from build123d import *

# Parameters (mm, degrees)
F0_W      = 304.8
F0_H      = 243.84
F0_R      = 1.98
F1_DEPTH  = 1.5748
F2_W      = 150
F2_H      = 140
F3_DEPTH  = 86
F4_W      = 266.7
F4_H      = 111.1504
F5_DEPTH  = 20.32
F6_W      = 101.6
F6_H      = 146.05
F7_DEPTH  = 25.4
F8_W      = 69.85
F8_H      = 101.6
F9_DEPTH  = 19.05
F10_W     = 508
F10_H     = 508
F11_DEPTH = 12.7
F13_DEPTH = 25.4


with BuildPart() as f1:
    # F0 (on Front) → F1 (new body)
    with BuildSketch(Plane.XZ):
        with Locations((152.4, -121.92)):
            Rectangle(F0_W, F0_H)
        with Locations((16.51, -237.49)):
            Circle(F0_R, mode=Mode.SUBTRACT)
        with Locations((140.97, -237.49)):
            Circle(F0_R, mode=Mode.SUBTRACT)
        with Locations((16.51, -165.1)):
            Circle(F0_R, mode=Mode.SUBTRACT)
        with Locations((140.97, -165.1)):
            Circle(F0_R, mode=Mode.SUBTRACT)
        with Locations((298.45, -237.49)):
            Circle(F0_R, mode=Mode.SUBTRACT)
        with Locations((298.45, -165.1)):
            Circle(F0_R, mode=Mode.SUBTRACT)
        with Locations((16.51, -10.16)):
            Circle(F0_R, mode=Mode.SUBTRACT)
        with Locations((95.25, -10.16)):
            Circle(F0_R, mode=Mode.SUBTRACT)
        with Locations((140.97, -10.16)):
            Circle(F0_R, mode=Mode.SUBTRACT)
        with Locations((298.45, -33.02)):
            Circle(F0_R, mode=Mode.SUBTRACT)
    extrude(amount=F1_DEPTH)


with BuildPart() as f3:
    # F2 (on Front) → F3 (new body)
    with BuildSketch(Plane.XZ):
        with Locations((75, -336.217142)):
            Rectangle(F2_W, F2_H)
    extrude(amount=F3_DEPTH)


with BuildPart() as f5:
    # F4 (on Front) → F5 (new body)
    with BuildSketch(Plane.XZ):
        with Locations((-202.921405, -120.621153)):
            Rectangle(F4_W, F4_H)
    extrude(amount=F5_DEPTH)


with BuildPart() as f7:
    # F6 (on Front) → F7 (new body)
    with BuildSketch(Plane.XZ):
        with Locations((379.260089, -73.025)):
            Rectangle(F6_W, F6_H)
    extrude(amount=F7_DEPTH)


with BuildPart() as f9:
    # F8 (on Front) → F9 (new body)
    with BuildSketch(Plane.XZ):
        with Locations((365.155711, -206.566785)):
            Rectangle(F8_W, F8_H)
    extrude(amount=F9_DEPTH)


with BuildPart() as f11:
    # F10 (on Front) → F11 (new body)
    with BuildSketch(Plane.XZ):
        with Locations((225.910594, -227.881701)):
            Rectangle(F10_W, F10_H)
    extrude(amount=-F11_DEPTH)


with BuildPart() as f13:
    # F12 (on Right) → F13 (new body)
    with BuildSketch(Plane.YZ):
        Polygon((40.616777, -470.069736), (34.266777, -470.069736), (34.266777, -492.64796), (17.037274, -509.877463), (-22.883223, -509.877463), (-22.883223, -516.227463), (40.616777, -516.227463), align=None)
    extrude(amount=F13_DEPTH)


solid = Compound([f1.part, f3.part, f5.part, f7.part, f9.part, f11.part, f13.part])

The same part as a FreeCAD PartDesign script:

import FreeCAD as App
import Part
import Sketcher
from FreeCAD import Vector
Q = App.Units.Quantity

doc = App.newDocument("Part")
body = doc.addObject("PartDesign::Body", "Body")

# Sketch on XZ plane
sketch1 = body.newObject("Sketcher::SketchObject", "Sketch")
sketch1.AttachmentSupport = (doc.getObject("XZ_Plane"), [""])
sketch1.MapMode = "FlatFace"
sketch1.addGeometry([
    Part.LineSegment(Vector(0, 0, 0), Vector(0, -243.8, 0)),  # 0
    Part.LineSegment(Vector(0, -243.8, 0), Vector(304.8, -243.8, 0)),  # 1
    Part.LineSegment(Vector(304.8, -243.8, 0), Vector(304.8, 0, 0)),  # 2
    Part.LineSegment(Vector(304.8, 0, 0), Vector(0, 0, 0)),  # 3
    Part.Circle(Vector(16.5, -237.5, 0), Vector(0, 0, 1), 2),  # 4
    Part.Circle(Vector(141, -237.5, 0), Vector(0, 0, 1), 2),  # 5
    Part.Circle(Vector(16.5, -165.1, 0), Vector(0, 0, 1), 2),  # 6
    Part.Circle(Vector(141, -165.1, 0), Vector(0, 0, 1), 2),  # 7
    Part.Circle(Vector(298.4, -237.5, 0), Vector(0, 0, 1), 2),  # 8
    Part.Circle(Vector(298.4, -165.1, 0), Vector(0, 0, 1), 2),  # 9
    Part.Circle(Vector(16.5, -10.2, 0), Vector(0, 0, 1), 2),  # 10
    Part.Circle(Vector(95.2, -10.2, 0), Vector(0, 0, 1), 2),  # 11
    Part.Circle(Vector(141, -10.2, 0), Vector(0, 0, 1), 2),  # 12
    Part.Circle(Vector(298.4, -33, 0), Vector(0, 0, 1), 2),  # 13
], False)
sketch1.addConstraint([
    Sketcher.Constraint("Coincident", 0, 2, 1, 1),
    Sketcher.Constraint("Coincident", 1, 2, 2, 1),
    Sketcher.Constraint("Coincident", 2, 2, 3, 1),
    Sketcher.Constraint("Coincident", 3, 2, 0, 1),
    Sketcher.Constraint("Vertical", 0),
    Sketcher.Constraint("Horizontal", 1),
    Sketcher.Constraint("Vertical", 2),
    Sketcher.Constraint("Horizontal", 3),
    Sketcher.Constraint("Coincident", 3, 2, -1, 1),
    Sketcher.Constraint("Equal", 4, 5),
    Sketcher.Constraint("Equal", 5, 6),
    Sketcher.Constraint("Equal", 6, 7),
    Sketcher.Constraint("Equal", 7, 8),
    Sketcher.Constraint("Equal", 8, 9),
    Sketcher.Constraint("Equal", 9, 10),
    Sketcher.Constraint("Equal", 10, 11),
    Sketcher.Constraint("Equal", 11, 12),
    Sketcher.Constraint("Equal", 12, 13),
    Sketcher.Constraint("Horizontal", 4, 3, 5, 3),
    Sketcher.Constraint("Horizontal", 6, 3, 7, 3),
    Sketcher.Constraint("Horizontal", 5, 3, 8, 3),
    Sketcher.Constraint("Horizontal", 7, 3, 9, 3),
    Sketcher.Constraint("Horizontal", 10, 3, 11, 3),
    Sketcher.Constraint("Horizontal", 11, 3, 12, 3),
    Sketcher.Constraint("Vertical", 4, 3, 6, 3),
    Sketcher.Constraint("Vertical", 5, 3, 7, 3),
    Sketcher.Constraint("Vertical", 8, 3, 9, 3),
    Sketcher.Constraint("Vertical", 6, 3, 10, 3),
    Sketcher.Constraint("Vertical", 7, 3, 12, 3),
    Sketcher.Constraint("Vertical", 9, 3, 13, 3),
    Sketcher.Constraint("DistanceX", 1, 1, 1, 2, Q("12 in")),
    Sketcher.Constraint("DistanceY", 0, 2, 0, 1, Q("9.6 in")),
    Sketcher.Constraint("DistanceX", 11, 3, 13, 3, Q("8 in")),
    Sketcher.Constraint("DistanceY", 6, 3, -1, 1, Q("6.5 in")),
    Sketcher.Constraint("DistanceY", 10, 3, -1, 1, Q("0.4 in")),
    Sketcher.Constraint("DistanceY", 13, 3, -1, 1, Q("1.3 in")),
    Sketcher.Constraint("DistanceX", 4, 3, 5, 3, Q("4.9 in")),
    Sketcher.Constraint("DistanceX", 5, 3, 8, 3, Q("6.2 in")),
    Sketcher.Constraint("Diameter", 4, 3.96),
    Sketcher.Constraint("DistanceX", -1, 1, 4, 3, Q("0.65 in")),
    Sketcher.Constraint("DistanceY", 4, 3, -1, 1, Q("9.35 in")),
])
pad1 = body.newObject("PartDesign::Pad", "Pad")
pad1.Profile = sketch1
pad1.Length = Q("0.062 in")
body2 = doc.addObject("PartDesign::Body", "Body001")

# Sketch on XZ plane
sketch2 = body2.newObject("Sketcher::SketchObject", "Sketch001")
sketch2.AttachmentSupport = (doc.getObject("XZ_Plane001"), [""])
sketch2.MapMode = "FlatFace"
sketch2.addGeometry([
    Part.LineSegment(Vector(0, -266, 0), Vector(0, -406, 0)),
    Part.LineSegment(Vector(0, -406, 0), Vector(150, -406, 0)),
    Part.LineSegment(Vector(150, -406, 0), Vector(150, -266, 0)),
    Part.LineSegment(Vector(150, -266, 0), Vector(0, -266, 0)),
], False)
sketch2.addConstraint([
    Sketcher.Constraint("Coincident", 0, 2, 1, 1),
    Sketcher.Constraint("Coincident", 1, 2, 2, 1),
    Sketcher.Constraint("Coincident", 2, 2, 3, 1),
    Sketcher.Constraint("Coincident", 3, 2, 0, 1),
    Sketcher.Constraint("Vertical", 0),
    Sketcher.Constraint("Horizontal", 1),
    Sketcher.Constraint("Vertical", 2),
    Sketcher.Constraint("Horizontal", 3),
    Sketcher.Constraint("PointOnObject", 0, 2, -2),
    Sketcher.Constraint("DistanceX", 1, 1, 1, 2, 150.0),
    Sketcher.Constraint("DistanceY", 0, 2, 0, 1, 140.0),
    Sketcher.Constraint("DistanceY", 0, 2, -1, 1, 406.217142),
])
pad2 = body2.newObject("PartDesign::Pad", "Pad001")
pad2.Profile = sketch2
pad2.Length = 86
body3 = doc.addObject("PartDesign::Body", "Body002")

# Sketch on XZ plane
sketch3 = body3.newObject("Sketcher::SketchObject", "Sketch002")
sketch3.AttachmentSupport = (doc.getObject("XZ_Plane002"), [""])
sketch3.MapMode = "FlatFace"
sketch3.addGeometry([
    Part.LineSegment(Vector(-336, -65, 0), Vector(-336, -176, 0)),
    Part.LineSegment(Vector(-336, -176, 0), Vector(-70, -176, 0)),
    Part.LineSegment(Vector(-70, -176, 0), Vector(-70, -65, 0)),
    Part.LineSegment(Vector(-70, -65, 0), Vector(-336, -65, 0)),
], False)
sketch3.addConstraint([
    Sketcher.Constraint("Coincident", 0, 2, 1, 1),
    Sketcher.Constraint("Coincident", 1, 2, 2, 1),
    Sketcher.Constraint("Coincident", 2, 2, 3, 1),
    Sketcher.Constraint("Coincident", 3, 2, 0, 1),
    Sketcher.Constraint("Vertical", 0),
    Sketcher.Constraint("Horizontal", 1),
    Sketcher.Constraint("Vertical", 2),
    Sketcher.Constraint("Horizontal", 3),
    Sketcher.Constraint("DistanceX", 1, 1, 1, 2, Q("10.5 in")),
    Sketcher.Constraint("DistanceY", 0, 2, 0, 1, Q("4.376 in")),
    Sketcher.Constraint("DistanceX", 0, 2, -1, 1, 336.271405),
    Sketcher.Constraint("DistanceY", 0, 2, -1, 1, 176.196353),
])
pad3 = body3.newObject("PartDesign::Pad", "Pad002")
pad3.Profile = sketch3
pad3.Length = Q("0.8 in")
body4 = doc.addObject("PartDesign::Body", "Body003")

# Sketch on XZ plane
sketch4 = body4.newObject("Sketcher::SketchObject", "Sketch003")
sketch4.AttachmentSupport = (doc.getObject("XZ_Plane003"), [""])
sketch4.MapMode = "FlatFace"
sketch4.addGeometry([
    Part.LineSegment(Vector(328, 0, 0), Vector(328, -146, 0)),
    Part.LineSegment(Vector(328, -146, 0), Vector(430, -146, 0)),
    Part.LineSegment(Vector(430, -146, 0), Vector(430, 0, 0)),
    Part.LineSegment(Vector(430, 0, 0), Vector(328, 0, 0)),
], False)
sketch4.addConstraint([
    Sketcher.Constraint("Coincident", 0, 2, 1, 1),
    Sketcher.Constraint("Coincident", 1, 2, 2, 1),
    Sketcher.Constraint("Coincident", 2, 2, 3, 1),
    Sketcher.Constraint("Coincident", 3, 2, 0, 1),
    Sketcher.Constraint("Vertical", 0),
    Sketcher.Constraint("Horizontal", 1),
    Sketcher.Constraint("Vertical", 2),
    Sketcher.Constraint("Horizontal", 3),
    Sketcher.Constraint("PointOnObject", 2, 2, -1),
    Sketcher.Constraint("DistanceX", 1, 1, 1, 2, Q("4 in")),
    Sketcher.Constraint("DistanceY", 0, 2, 0, 1, Q("5.75 in")),
    Sketcher.Constraint("DistanceX", -1, 1, 0, 2, 328.460089),
])
pad4 = body4.newObject("PartDesign::Pad", "Pad003")
pad4.Profile = sketch4
pad4.Length = Q("1 in")
body5 = doc.addObject("PartDesign::Body", "Body004")

# Sketch on XZ plane
sketch5 = body5.newObject("Sketcher::SketchObject", "Sketch004")
sketch5.AttachmentSupport = (doc.getObject("XZ_Plane004"), [""])
sketch5.MapMode = "FlatFace"
sketch5.addGeometry([
    Part.LineSegment(Vector(330, -156, 0), Vector(330, -257, 0)),
    Part.LineSegment(Vector(330, -257, 0), Vector(400, -257, 0)),
    Part.LineSegment(Vector(400, -257, 0), Vector(400, -156, 0)),
    Part.LineSegment(Vector(400, -156, 0), Vector(330, -156, 0)),
], False)
sketch5.addConstraint([
    Sketcher.Constraint("Coincident", 0, 2, 1, 1),
    Sketcher.Constraint("Coincident", 1, 2, 2, 1),
    Sketcher.Constraint("Coincident", 2, 2, 3, 1),
    Sketcher.Constraint("Coincident", 3, 2, 0, 1),
    Sketcher.Constraint("Vertical", 0),
    Sketcher.Constraint("Horizontal", 1),
    Sketcher.Constraint("Vertical", 2),
    Sketcher.Constraint("Horizontal", 3),
    Sketcher.Constraint("DistanceY", 0, 2, 0, 1, Q("4 in")),
    Sketcher.Constraint("DistanceX", 1, 1, 1, 2, Q("2.75 in")),
    Sketcher.Constraint("DistanceX", -1, 1, 0, 2, 330.230711),
    Sketcher.Constraint("DistanceY", 0, 2, -1, 1, 257.366785),
])
pad5 = body5.newObject("PartDesign::Pad", "Pad004")
pad5.Profile = sketch5
pad5.Length = Q("0.75 in")
body6 = doc.addObject("PartDesign::Body", "Body005")

# Sketch on XZ plane
sketch6 = body6.newObject("Sketcher::SketchObject", "Sketch005")
sketch6.AttachmentSupport = (doc.getObject("XZ_Plane005"), [""])
sketch6.MapMode = "FlatFace"
sketch6.addGeometry([
    Part.LineSegment(Vector(-28, 26, 0), Vector(-28, -482, 0)),
    Part.LineSegment(Vector(-28, -482, 0), Vector(480, -482, 0)),
    Part.LineSegment(Vector(480, -482, 0), Vector(480, 26, 0)),
    Part.LineSegment(Vector(480, 26, 0), Vector(-28, 26, 0)),
], False)
sketch6.addConstraint([
    Sketcher.Constraint("Coincident", 0, 2, 1, 1),
    Sketcher.Constraint("Coincident", 1, 2, 2, 1),
    Sketcher.Constraint("Coincident", 2, 2, 3, 1),
    Sketcher.Constraint("Coincident", 3, 2, 0, 1),
    Sketcher.Constraint("Vertical", 0),
    Sketcher.Constraint("Horizontal", 1),
    Sketcher.Constraint("Vertical", 2),
    Sketcher.Constraint("Horizontal", 3),
    Sketcher.Constraint("Equal", 3, 0),
    Sketcher.Constraint("DistanceX", 1, 1, 1, 2, Q("20 in")),
    Sketcher.Constraint("DistanceY", 0, 2, -1, 1, 481.881701),
    Sketcher.Constraint("DistanceX", 0, 2, -1, 1, 28.089406),
])
pad6 = body6.newObject("PartDesign::Pad", "Pad005")
pad6.Profile = sketch6
pad6.Length = Q("0.5 in")
pad6.Reversed = True
body7 = doc.addObject("PartDesign::Body", "Body006")

# Sketch on YZ plane
sketch7 = body7.newObject("Sketcher::SketchObject", "Sketch006")
sketch7.AttachmentSupport = (doc.getObject("YZ_Plane006"), [""])
sketch7.MapMode = "FlatFace"
sketch7.addGeometry([
    Part.LineSegment(Vector(41, -470, 0), Vector(34, -470, 0)),  # 0
    Part.LineSegment(Vector(34, -470, 0), Vector(34, -493, 0)),  # 1
    Part.LineSegment(Vector(34, -493, 0), Vector(17, -510, 0)),  # 2
    Part.LineSegment(Vector(17, -510, 0), Vector(-23, -510, 0)),  # 3
    Part.LineSegment(Vector(-23, -510, 0), Vector(-23, -516, 0)),  # 4
    Part.LineSegment(Vector(-23, -516, 0), Vector(41, -516, 0)),  # 5
    Part.LineSegment(Vector(41, -516, 0), Vector(41, -470, 0)),  # 6
], False)
sketch7.addConstraint([
    Sketcher.Constraint("Coincident", 0, 2, 1, 1),
    Sketcher.Constraint("Coincident", 1, 2, 2, 1),
    Sketcher.Constraint("Coincident", 2, 2, 3, 1),
    Sketcher.Constraint("Coincident", 3, 2, 4, 1),
    Sketcher.Constraint("Coincident", 4, 2, 5, 1),
    Sketcher.Constraint("Coincident", 5, 2, 6, 1),
    Sketcher.Constraint("Coincident", 6, 2, 0, 1),
    Sketcher.Constraint("Horizontal", 0),
    Sketcher.Constraint("Vertical", 1),
    Sketcher.Constraint("Horizontal", 3),
    Sketcher.Constraint("Vertical", 4),
    Sketcher.Constraint("Horizontal", 5),
    Sketcher.Constraint("Vertical", 6),
    Sketcher.Constraint("Equal", 0, 4),
    Sketcher.Constraint("DistanceX", 5, 1, 5, 2, Q("2.5 in")),
    Sketcher.Constraint("Angle", 2, Q("-135 deg")),
    Sketcher.Constraint("DistanceX", 0, 2, 0, 1, Q("0.25 in")),
    Sketcher.Constraint("DistanceX", 3, 2, 3, 1, 39.920497),
    Sketcher.Constraint("DistanceY", 1, 2, 1, 1, 22.578224),
    Sketcher.Constraint("DistanceY", 1, 2, -1, 1, 492.64796),
    Sketcher.Constraint("DistanceX", -1, 1, 0, 2, 34.266777),
])
pad7 = body7.newObject("PartDesign::Pad", "Pad006")
pad7.Profile = sketch7
pad7.Length = Q("1 in")

doc.recompute()
